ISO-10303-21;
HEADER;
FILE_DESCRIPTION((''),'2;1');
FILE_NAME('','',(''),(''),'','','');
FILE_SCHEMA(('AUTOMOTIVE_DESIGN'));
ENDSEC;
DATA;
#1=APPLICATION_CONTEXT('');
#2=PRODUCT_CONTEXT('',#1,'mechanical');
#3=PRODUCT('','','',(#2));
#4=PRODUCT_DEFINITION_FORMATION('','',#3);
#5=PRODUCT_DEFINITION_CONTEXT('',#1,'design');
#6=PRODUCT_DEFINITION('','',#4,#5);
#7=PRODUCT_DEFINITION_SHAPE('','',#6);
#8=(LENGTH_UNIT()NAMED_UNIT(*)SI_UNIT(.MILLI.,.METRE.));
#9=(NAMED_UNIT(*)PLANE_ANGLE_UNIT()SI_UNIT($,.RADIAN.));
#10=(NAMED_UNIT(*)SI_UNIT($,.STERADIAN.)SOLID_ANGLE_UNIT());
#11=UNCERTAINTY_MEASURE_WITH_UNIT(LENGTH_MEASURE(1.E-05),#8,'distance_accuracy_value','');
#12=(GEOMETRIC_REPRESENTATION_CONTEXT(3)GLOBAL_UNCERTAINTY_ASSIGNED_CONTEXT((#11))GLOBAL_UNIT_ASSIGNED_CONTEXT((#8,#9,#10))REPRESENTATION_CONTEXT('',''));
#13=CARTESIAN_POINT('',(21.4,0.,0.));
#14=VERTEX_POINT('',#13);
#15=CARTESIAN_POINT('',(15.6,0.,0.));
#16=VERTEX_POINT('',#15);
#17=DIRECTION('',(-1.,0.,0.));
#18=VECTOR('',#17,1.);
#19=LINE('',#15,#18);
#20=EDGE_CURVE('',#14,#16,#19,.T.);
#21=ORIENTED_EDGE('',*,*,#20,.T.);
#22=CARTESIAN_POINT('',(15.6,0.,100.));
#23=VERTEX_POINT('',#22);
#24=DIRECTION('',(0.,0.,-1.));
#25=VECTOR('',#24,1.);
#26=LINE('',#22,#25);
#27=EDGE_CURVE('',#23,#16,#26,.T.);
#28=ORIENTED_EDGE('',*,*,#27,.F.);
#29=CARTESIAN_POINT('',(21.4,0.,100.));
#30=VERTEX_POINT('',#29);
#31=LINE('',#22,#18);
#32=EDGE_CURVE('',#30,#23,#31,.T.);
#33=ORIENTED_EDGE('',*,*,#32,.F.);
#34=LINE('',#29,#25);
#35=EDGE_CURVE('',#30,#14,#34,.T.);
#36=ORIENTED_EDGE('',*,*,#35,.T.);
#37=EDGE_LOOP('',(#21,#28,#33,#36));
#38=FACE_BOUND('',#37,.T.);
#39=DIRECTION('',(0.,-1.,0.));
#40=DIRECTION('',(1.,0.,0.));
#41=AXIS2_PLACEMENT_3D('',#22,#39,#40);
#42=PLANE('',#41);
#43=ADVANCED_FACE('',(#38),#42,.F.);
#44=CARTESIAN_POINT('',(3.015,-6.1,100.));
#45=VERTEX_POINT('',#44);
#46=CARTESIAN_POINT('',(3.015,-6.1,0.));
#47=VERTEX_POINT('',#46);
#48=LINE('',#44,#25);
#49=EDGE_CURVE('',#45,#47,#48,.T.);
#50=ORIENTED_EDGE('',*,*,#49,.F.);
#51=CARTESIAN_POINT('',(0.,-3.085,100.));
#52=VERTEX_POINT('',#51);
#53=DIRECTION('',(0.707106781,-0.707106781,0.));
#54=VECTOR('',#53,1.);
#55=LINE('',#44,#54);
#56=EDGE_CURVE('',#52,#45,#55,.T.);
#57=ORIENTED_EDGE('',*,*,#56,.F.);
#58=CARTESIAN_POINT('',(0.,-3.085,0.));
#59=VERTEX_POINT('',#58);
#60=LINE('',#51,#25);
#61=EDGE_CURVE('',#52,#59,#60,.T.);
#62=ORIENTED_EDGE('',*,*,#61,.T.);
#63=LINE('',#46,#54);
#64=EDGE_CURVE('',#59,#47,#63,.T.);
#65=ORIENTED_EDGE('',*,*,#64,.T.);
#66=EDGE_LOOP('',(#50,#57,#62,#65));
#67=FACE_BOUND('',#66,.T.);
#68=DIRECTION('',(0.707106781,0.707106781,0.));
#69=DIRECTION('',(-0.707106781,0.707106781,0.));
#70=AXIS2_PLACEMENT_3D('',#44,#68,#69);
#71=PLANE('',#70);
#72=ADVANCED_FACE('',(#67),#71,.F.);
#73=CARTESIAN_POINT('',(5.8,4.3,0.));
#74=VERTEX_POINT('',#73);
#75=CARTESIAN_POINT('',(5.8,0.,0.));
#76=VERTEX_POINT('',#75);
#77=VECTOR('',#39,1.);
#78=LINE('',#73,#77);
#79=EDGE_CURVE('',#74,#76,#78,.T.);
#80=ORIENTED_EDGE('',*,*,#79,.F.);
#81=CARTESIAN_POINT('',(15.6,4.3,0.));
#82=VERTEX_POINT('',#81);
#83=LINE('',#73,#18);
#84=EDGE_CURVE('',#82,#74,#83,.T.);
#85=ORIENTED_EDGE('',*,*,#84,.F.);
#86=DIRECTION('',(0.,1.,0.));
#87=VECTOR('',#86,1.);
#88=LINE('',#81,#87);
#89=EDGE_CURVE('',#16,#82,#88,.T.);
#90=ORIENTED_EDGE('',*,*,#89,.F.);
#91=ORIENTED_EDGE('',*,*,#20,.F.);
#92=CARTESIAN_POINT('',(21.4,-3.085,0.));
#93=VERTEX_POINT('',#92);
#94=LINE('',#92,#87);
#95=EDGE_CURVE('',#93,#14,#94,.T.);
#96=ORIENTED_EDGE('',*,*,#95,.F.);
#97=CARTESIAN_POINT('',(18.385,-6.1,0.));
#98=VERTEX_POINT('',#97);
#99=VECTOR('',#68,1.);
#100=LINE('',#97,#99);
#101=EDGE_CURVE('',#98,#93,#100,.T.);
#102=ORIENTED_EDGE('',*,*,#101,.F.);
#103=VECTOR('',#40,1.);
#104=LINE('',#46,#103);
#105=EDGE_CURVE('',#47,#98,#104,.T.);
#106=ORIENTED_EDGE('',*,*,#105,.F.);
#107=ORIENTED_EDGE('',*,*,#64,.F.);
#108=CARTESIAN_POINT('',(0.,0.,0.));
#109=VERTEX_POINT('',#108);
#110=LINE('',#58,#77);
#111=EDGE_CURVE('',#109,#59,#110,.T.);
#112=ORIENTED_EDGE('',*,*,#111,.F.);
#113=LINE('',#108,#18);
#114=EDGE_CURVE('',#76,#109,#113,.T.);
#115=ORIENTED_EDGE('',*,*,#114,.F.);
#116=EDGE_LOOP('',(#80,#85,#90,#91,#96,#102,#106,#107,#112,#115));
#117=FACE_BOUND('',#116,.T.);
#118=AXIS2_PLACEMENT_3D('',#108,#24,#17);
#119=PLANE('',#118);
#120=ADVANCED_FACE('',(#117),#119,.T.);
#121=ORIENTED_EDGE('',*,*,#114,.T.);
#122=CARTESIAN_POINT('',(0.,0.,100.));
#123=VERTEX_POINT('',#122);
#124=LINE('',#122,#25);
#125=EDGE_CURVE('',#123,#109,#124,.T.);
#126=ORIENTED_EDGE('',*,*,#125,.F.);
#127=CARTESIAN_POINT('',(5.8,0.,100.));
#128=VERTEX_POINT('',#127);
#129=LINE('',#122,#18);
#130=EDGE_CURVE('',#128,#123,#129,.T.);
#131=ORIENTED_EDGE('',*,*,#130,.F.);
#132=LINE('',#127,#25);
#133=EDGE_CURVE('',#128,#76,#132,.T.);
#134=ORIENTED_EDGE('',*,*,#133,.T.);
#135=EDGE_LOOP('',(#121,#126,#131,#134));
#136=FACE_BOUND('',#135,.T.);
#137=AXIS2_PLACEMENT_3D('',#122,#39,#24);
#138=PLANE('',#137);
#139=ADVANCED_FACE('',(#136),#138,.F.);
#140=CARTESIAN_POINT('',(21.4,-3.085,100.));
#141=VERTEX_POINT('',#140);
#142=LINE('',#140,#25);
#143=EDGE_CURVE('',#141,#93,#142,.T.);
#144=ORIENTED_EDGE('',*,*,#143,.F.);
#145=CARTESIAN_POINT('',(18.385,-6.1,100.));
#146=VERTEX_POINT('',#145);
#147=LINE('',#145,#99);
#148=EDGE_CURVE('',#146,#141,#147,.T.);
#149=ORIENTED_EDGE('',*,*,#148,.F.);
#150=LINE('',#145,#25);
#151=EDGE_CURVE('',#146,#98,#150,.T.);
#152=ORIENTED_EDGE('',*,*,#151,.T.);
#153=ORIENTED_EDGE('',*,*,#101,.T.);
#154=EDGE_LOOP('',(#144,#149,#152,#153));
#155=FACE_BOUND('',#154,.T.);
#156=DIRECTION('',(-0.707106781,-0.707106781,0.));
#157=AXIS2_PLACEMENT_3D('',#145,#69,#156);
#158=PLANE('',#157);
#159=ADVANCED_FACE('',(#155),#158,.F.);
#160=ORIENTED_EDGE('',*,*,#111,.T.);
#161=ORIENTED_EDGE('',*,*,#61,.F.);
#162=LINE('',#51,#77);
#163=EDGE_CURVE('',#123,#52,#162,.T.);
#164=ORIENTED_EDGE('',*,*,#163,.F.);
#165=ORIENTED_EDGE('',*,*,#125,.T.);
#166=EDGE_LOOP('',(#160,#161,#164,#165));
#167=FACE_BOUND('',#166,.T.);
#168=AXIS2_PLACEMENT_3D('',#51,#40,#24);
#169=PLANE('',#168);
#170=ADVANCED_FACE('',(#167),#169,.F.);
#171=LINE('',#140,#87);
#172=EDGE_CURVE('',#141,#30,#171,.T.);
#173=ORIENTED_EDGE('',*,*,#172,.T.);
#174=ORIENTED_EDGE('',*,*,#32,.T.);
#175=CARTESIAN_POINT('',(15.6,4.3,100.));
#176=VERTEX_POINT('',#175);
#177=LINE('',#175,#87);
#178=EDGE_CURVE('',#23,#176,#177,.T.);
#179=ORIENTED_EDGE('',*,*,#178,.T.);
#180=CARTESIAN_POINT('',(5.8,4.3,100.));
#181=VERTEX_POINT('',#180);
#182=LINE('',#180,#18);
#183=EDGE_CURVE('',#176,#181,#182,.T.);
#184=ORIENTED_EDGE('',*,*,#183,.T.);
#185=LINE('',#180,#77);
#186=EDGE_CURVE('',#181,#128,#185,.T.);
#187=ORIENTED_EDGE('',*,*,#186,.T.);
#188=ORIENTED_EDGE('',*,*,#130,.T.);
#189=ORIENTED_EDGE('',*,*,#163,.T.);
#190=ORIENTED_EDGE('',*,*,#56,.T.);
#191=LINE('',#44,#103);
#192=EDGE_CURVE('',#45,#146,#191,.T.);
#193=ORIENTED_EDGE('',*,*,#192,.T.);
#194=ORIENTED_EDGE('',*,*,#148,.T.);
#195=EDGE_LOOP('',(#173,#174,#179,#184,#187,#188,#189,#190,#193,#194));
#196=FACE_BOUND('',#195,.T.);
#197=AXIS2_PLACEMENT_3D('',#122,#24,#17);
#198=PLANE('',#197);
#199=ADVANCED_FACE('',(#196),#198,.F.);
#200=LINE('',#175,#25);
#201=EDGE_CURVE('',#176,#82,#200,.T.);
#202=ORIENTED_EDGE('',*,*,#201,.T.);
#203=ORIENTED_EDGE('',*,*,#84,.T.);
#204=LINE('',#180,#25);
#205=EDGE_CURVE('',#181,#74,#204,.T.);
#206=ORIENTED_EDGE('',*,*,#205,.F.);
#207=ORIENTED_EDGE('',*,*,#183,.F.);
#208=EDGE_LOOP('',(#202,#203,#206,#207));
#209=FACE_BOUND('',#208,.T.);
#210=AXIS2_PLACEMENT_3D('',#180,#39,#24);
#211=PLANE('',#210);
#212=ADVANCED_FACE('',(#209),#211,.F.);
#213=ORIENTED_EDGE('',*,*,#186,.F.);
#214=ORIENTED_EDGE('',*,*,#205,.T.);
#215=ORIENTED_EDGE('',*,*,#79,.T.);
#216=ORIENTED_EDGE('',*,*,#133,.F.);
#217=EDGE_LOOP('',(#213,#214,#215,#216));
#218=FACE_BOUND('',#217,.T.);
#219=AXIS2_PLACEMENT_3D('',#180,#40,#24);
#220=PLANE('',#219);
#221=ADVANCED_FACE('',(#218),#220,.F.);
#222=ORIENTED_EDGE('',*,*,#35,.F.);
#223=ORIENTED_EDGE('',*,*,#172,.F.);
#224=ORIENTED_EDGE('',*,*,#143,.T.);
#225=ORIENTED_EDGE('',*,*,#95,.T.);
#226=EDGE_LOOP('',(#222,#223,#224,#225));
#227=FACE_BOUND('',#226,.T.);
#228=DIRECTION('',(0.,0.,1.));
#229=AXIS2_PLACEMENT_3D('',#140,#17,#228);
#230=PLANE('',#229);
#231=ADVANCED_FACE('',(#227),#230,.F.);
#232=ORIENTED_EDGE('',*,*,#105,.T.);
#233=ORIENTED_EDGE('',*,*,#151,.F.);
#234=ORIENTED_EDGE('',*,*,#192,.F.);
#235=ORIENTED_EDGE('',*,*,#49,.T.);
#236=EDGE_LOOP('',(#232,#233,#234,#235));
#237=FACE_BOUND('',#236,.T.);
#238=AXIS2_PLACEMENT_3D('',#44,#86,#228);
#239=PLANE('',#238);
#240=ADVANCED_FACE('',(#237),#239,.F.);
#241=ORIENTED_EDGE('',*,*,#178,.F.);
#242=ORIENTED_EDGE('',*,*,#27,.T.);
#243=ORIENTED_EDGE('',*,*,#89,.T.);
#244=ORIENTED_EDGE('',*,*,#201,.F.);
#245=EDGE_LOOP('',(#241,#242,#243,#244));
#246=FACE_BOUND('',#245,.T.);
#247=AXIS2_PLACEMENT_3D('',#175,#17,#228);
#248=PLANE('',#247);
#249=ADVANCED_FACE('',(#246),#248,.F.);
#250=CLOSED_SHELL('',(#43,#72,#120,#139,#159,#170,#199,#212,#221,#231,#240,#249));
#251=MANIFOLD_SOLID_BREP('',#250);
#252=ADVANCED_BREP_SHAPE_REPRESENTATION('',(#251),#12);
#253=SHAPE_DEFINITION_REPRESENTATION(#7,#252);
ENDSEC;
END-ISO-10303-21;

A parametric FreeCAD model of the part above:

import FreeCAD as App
import Part
import Sketcher
Q = App.Units.Quantity

doc = App.newDocument("Part")
params = doc.addObject("Spreadsheet::Sheet", "Params")
for row, (alias, value) in enumerate([
    ("sketch1_width", "9.8 mm"),
    ("sketch1_width2", "5.8 mm"),
    ("sketch1_height", "4.3 mm"),
    ("sketch1_width3", "15.37 mm"),
    ("pad1_length", "100 mm"),
], start=1):
    params.set(f"A{row}", alias)
    params.set(f"B{row}", "=" + value)
    params.setAlias(f"B{row}", alias)

body = doc.addObject("PartDesign::Body", "Body")

# Sketch on XY plane
sketch1 = doc.addObject("Sketcher::SketchObject", "Sketch")
body.addObject(sketch1)
sketch1.AttachmentSupport = (doc.XY_Plane, [""])
sketch1.MapMode = "FlatFace"
sketch1.addGeometry([
    Part.LineSegment(App.Vector(15.6, 0, 0), App.Vector(15.6, 4.3, 0)),  # 0
    Part.LineSegment(App.Vector(15.6, 4.3, 0), App.Vector(5.8, 4.3, 0)),  # 1
    Part.LineSegment(App.Vector(5.8, 4.3, 0), App.Vector(5.8, 0, 0)),  # 2
    Part.LineSegment(App.Vector(5.8, 0, 0), App.Vector(0, 0, 0)),  # 3
    Part.LineSegment(App.Vector(0, 0, 0), App.Vector(0, -3.1, 0)),  # 4
    Part.LineSegment(App.Vector(0, -3.1, 0), App.Vector(3, -6.1, 0)),  # 5
    Part.LineSegment(App.Vector(3, -6.1, 0), App.Vector(18.4, -6.1, 0)),  # 6
    Part.LineSegment(App.Vector(18.4, -6.1, 0), App.Vector(21.4, -3.1, 0)),  # 7
    Part.LineSegment(App.Vector(21.4, -3.1, 0), App.Vector(21.4, 0, 0)),  # 8
    Part.LineSegment(App.Vector(21.4, 0, 0), App.Vector(15.6, 0, 0)),  # 9
], False)
sketch1.addConstraint([
    Sketcher.Constraint("Coincident", 0, 2, 1, 1),
    Sketcher.Constraint("Coincident", 1, 2, 2, 1),
    Sketcher.Constraint("Coincident", 2, 2, 3, 1),
    Sketcher.Constraint("Coincident", 3, 2, 4, 1),
    Sketcher.Constraint("Coincident", 4, 2, 5, 1),
    Sketcher.Constraint("Coincident", 5, 2, 6, 1),
    Sketcher.Constraint("Coincident", 6, 2, 7, 1),
    Sketcher.Constraint("Coincident", 7, 2, 8, 1),
    Sketcher.Constraint("Coincident", 8, 2, 9, 1),
    Sketcher.Constraint("Coincident", 9, 2, 0, 1),
    Sketcher.Constraint("Vertical", 0),
    Sketcher.Constraint("Horizontal", 1),
    Sketcher.Constraint("Vertical", 2),
    Sketcher.Constraint("Horizontal", 3),
    Sketcher.Constraint("Vertical", 4),
    Sketcher.Constraint("Horizontal", 6),
    Sketcher.Constraint("Vertical", 8),
    Sketcher.Constraint("Horizontal", 9),
    Sketcher.Constraint("Coincident", 3, 2, -1, 1),
    Sketcher.Constraint("PointOnObject", 8, 2, -1),
    Sketcher.Constraint("Perpendicular", 5, 7),
    Sketcher.Constraint("Horizontal", 4, 2, 7, 2),
    Sketcher.Constraint("Equal", 3, 9),
    Sketcher.Constraint("Equal", 5, 7),
    Sketcher.Constraint("DistanceX", 1, 2, 1, 1, Q("9.8 mm")),
    Sketcher.Constraint("DistanceX", 3, 2, 3, 1, Q("5.8 mm")),
    Sketcher.Constraint("DistanceY", 0, 1, 0, 2, Q("4.3 mm")),
    Sketcher.Constraint("DistanceX", 6, 1, 6, 2, Q("15.37 mm")),
    Sketcher.Constraint("DistanceY", 5, 2, -1, 1, Q("6.1 mm")),
])
sketch1.setExpression("Constraints[24]", "Params.sketch1_width")
sketch1.setExpression("Constraints[25]", "Params.sketch1_width2")
sketch1.setExpression("Constraints[26]", "Params.sketch1_height")
sketch1.setExpression("Constraints[27]", "Params.sketch1_width3")
pad1 = doc.addObject("PartDesign::Pad", "Pad")
body.addObject(pad1)
pad1.Profile = sketch1
pad1.setExpression("Length", "Params.pad1_length")

doc.recompute()
